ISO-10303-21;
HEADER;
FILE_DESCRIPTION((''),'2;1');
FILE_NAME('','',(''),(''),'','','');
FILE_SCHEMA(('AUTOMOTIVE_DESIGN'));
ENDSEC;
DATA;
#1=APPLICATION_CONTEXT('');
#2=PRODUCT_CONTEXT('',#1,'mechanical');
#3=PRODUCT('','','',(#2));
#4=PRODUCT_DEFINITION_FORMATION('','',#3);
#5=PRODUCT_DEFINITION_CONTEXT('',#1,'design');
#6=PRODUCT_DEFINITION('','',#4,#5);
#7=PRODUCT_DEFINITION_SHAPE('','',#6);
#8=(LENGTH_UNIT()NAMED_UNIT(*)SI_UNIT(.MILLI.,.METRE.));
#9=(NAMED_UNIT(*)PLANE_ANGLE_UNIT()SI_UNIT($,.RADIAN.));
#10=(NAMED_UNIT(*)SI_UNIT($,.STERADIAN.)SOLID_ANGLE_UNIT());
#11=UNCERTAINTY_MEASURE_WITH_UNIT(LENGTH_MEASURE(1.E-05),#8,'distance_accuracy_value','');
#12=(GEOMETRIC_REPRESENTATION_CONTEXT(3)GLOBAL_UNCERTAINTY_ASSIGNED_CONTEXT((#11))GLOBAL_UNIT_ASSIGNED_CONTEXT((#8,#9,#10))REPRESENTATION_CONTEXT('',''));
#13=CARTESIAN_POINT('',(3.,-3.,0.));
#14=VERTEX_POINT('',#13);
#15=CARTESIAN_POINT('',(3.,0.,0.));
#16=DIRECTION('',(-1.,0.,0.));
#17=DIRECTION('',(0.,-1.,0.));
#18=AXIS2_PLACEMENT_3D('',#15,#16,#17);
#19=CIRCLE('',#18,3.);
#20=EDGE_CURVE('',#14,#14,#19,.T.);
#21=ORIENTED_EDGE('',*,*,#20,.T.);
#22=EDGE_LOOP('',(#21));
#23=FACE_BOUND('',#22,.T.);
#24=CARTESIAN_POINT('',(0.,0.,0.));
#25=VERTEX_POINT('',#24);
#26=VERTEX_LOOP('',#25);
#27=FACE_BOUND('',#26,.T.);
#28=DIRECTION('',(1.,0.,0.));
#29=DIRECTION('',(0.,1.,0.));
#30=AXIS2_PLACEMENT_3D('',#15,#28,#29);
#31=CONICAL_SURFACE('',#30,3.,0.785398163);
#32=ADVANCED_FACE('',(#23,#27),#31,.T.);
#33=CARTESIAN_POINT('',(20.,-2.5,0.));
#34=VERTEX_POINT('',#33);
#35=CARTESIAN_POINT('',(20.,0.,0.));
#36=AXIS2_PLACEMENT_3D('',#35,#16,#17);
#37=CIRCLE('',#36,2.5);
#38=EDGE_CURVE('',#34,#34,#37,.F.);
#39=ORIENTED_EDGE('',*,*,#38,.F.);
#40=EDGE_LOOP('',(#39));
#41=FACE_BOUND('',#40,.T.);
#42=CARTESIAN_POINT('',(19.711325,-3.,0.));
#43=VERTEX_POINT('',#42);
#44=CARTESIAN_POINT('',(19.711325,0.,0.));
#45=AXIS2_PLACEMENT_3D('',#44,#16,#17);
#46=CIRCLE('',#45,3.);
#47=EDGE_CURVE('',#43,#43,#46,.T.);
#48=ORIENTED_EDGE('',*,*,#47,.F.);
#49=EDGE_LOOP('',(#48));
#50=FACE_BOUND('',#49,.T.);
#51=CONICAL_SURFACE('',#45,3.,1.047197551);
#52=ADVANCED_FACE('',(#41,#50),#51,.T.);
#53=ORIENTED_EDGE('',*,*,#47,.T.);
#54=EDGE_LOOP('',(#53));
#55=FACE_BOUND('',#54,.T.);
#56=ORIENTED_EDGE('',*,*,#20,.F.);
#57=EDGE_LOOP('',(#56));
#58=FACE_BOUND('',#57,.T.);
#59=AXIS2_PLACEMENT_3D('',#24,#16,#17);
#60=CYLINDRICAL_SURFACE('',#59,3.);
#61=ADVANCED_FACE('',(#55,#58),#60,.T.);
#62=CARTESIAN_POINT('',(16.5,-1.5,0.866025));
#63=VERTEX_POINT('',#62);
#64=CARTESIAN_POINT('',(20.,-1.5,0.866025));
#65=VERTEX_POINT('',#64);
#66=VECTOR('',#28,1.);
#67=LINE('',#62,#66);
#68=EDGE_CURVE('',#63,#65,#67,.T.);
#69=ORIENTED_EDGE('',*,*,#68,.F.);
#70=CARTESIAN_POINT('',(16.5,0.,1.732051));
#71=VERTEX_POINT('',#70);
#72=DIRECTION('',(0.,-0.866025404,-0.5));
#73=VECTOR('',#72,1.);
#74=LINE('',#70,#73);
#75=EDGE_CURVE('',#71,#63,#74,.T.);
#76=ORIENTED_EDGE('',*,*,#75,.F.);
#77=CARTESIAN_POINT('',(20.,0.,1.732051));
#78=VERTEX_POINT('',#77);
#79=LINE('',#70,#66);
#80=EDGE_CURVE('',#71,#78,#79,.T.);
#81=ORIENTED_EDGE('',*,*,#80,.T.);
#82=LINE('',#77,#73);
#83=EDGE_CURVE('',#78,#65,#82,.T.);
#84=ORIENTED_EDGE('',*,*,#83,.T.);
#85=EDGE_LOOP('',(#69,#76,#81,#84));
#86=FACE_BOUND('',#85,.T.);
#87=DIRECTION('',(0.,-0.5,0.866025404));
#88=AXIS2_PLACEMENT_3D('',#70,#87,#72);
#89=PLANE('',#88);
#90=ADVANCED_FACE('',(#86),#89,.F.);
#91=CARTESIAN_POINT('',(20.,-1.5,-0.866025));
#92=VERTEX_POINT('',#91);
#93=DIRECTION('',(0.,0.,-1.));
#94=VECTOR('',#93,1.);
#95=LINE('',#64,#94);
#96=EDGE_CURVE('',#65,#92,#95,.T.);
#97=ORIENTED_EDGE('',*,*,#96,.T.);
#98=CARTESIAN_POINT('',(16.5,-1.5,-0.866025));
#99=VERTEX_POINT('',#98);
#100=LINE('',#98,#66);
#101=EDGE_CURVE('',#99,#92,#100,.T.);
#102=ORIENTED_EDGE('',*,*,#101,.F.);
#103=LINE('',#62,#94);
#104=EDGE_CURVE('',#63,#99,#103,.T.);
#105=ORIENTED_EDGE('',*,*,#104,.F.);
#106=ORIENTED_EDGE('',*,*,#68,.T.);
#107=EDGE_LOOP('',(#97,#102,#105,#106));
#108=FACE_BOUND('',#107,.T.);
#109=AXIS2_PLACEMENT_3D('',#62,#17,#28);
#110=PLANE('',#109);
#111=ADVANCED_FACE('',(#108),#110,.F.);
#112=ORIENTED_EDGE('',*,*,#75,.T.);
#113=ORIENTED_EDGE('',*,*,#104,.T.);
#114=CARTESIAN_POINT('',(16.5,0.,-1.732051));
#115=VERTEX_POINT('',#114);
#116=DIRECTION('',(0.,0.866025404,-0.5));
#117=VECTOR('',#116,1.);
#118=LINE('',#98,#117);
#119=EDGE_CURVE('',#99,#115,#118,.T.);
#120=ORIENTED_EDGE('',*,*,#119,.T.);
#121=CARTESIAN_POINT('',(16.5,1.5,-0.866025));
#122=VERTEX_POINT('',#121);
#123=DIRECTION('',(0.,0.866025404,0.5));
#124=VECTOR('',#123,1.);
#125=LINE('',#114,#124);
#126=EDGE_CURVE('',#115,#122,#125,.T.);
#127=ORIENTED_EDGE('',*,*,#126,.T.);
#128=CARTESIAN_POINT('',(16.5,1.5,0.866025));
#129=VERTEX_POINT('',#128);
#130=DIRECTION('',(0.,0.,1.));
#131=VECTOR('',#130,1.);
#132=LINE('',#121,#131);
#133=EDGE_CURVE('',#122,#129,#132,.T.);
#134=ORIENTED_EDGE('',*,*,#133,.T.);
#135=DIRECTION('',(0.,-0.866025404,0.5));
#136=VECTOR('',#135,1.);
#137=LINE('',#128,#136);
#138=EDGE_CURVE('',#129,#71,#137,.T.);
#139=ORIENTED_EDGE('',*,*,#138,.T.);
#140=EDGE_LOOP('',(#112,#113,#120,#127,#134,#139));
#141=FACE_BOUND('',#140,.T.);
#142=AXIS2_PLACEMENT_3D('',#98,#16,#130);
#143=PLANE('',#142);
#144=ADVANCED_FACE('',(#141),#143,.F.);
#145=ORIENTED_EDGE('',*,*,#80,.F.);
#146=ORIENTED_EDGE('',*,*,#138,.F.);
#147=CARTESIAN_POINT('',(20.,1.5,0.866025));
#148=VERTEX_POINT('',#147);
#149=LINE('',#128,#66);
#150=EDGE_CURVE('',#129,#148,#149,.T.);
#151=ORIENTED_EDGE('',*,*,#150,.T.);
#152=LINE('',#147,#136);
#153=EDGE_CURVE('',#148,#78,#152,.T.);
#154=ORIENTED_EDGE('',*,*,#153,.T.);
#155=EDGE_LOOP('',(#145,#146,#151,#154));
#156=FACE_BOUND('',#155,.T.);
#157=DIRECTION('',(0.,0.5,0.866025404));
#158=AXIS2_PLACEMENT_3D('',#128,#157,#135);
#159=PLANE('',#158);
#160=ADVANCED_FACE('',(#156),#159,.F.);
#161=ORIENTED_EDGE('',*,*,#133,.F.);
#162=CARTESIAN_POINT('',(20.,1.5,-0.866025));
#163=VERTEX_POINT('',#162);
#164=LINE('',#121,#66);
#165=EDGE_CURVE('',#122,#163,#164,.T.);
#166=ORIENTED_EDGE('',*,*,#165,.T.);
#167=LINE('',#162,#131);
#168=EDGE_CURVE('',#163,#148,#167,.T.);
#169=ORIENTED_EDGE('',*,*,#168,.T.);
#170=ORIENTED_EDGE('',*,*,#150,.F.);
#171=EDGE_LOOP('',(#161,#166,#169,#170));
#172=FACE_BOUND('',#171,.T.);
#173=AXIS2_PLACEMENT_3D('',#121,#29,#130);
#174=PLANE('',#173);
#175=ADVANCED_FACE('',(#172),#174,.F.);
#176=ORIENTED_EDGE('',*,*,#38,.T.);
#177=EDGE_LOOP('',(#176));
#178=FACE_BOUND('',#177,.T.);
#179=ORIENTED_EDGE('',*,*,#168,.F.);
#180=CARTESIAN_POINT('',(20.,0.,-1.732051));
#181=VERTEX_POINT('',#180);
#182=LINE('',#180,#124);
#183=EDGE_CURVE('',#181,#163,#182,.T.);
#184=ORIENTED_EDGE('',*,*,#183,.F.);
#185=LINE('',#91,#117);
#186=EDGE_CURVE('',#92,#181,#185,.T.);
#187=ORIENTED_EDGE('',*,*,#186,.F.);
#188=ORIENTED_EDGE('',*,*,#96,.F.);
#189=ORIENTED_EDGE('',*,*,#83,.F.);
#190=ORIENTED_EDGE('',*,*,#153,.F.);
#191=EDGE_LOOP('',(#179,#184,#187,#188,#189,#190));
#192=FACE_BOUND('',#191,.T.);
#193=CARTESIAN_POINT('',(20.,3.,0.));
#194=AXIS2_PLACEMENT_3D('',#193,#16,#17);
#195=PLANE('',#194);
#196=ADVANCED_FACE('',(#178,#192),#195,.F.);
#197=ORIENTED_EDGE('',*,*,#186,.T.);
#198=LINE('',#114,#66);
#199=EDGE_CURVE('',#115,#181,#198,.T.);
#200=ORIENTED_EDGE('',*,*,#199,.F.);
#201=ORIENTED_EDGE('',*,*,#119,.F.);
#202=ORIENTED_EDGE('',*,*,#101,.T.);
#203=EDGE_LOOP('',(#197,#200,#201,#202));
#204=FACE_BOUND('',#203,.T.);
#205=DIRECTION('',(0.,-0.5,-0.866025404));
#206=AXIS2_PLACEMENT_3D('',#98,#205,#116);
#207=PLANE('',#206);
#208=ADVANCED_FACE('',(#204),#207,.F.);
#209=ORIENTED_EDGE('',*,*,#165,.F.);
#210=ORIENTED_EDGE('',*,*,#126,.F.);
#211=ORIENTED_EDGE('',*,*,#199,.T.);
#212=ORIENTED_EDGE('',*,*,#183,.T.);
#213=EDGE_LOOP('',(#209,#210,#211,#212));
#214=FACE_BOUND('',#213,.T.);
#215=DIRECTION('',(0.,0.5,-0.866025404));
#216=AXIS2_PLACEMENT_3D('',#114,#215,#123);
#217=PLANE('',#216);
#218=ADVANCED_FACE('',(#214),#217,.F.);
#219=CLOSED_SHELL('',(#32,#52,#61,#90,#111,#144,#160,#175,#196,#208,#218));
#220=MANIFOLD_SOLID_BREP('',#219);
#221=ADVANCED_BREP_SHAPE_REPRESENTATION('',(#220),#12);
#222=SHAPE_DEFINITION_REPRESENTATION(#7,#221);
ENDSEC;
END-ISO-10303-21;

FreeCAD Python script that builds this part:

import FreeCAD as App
import Part
import Sketcher

V = App.Vector
Q = App.Units.Quantity


def edges_at(feature, points):
    """Names of the edges that pass closest to the given points."""
    edges = feature.Shape.Edges
    near = lambda p: min(range(len(edges)), key=lambda i: edges[i].distToShape(Part.Vertex(*p))[0])
    return sorted({f"Edge{near(p) + 1}" for p in points})


def add_polygon(sketch, points):
    """Adds a closed chain of lines whose ends are joined by coincident constraints."""
    first, n = sketch.GeometryCount, len(points)
    for a, b in zip(points, points[1:] + points[:1]):
        sketch.addGeometry(Part.LineSegment(App.Vector(*a, 0), App.Vector(*b, 0)), False)
    for i in range(n):
        sketch.addConstraint(Sketcher.Constraint("Coincident", first + i, 2, first + (i + 1) % n, 1))

doc = App.newDocument("Part")
params = doc.addObject("Spreadsheet::Sheet", "Params")
for row, (alias, value) in enumerate([
    ("sketch1_width", "20 mm"),
    ("sketch1_width2", "17 mm"),
    ("sketch1_height", "3 mm"),
    ("revolution_angle", "360 deg"),
    ("pocket1_length", "3.5 mm"),
    ("chamfer_size", "0.288675 mm"),
    ("chamfer_size2", "0.5 mm"),
], start=1):
    params.set(f"A{row}", alias)
    params.set(f"B{row}", "=" + value)
    params.setAlias(f"B{row}", alias)

body = doc.addObject("PartDesign::Body", "Body")

sketch1 = doc.addObject("Sketcher::SketchObject", "Sketch")
body.addObject(sketch1)
sketch1.AttachmentSupport = (doc.XY_Plane, [""])
sketch1.MapMode = "FlatFace"
add_polygon(sketch1, [(3, 3), (0, 0), (20, 0), (20, 3)])
sketch1.addConstraint(Sketcher.Constraint("Horizontal", 1))
sketch1.addConstraint(Sketcher.Constraint("Vertical", 2))
sketch1.addConstraint(Sketcher.Constraint("Horizontal", 3))
sketch1.addConstraint(Sketcher.Constraint("Coincident", 0, 2, -1, 1))
sketch1.addConstraint(Sketcher.Constraint("DistanceX", 1, 1, 1, 2, Q("20 mm")))
sketch1.addConstraint(Sketcher.Constraint("DistanceX", 3, 2, 3, 1, Q("17 mm")))
sketch1.addConstraint(Sketcher.Constraint("DistanceY", 2, 1, 2, 2, Q("3 mm")))
sketch1.setExpression("Constraints[8]", "Params.sketch1_width")
sketch1.setExpression("Constraints[9]", "Params.sketch1_width2")
sketch1.setExpression("Constraints[10]", "Params.sketch1_height")
revolution = doc.addObject("PartDesign::Revolution", "Revolution")
body.addObject(revolution)
revolution.Profile = sketch1
revolution.ReferenceAxis = (sketch1, ["H_Axis"])
revolution.setExpression("Angle", "Params.revolution_angle")

sketch2 = doc.addObject("Sketcher::SketchObject", "Sketch001")
body.addObject(sketch2)
sketch2.AttachmentSupport = (doc.YZ_Plane, [""])
sketch2.MapMode = "FlatFace"
sketch2.AttachmentOffset = App.Placement(V(0, 0, 20), App.Rotation())
add_polygon(sketch2, [(0, -1.7), (1.5, -0.9), (1.5, 0.9), (0, 1.7), (-1.5, 0.9), (-1.5, -0.9)])
sketch2.addConstraint(Sketcher.Constraint("Vertical", 1))
sketch2.addConstraint(Sketcher.Constraint("Vertical", 4))
sketch2.addConstraint(Sketcher.Constraint("Symmetric", 0, 2, 3, 2, -1, 1))
sketch2.addConstraint(Sketcher.Constraint("Symmetric", 2, 2, 5, 2, -1, 1))
sketch2.addConstraint(Sketcher.Constraint("PointOnObject", 2, 2, -2))
sketch2.addConstraint(Sketcher.Constraint("Parallel", 2, 5))
sketch2.addConstraint(Sketcher.Constraint("Horizontal", 1, 2, 3, 2))
sketch2.addConstraint(Sketcher.Constraint("Angle", 0, Q("30 deg")))
sketch2.addConstraint(Sketcher.Constraint("DistanceX", 3, 2, 1, 2, Q("3 mm")))
sketch2.addConstraint(Sketcher.Constraint("DistanceY", 1, 1, 1, 2, Q("1.732051 mm")))
pocket1 = doc.addObject("PartDesign::Pocket", "Pocket")
body.addObject(pocket1)
pocket1.Profile = sketch2
pocket1.setExpression("Length", "Params.pocket1_length")
doc.recompute()

chamfer = doc.addObject("PartDesign::Chamfer", "Chamfer")
body.addObject(chamfer)
chamfer.Base = (pocket1, edges_at(pocket1, [(20, 3, 0)]))
chamfer.ChamferType = "Two distances"
chamfer.setExpression("Size", "Params.chamfer_size")
chamfer.setExpression("Size2", "Params.chamfer_size2")

doc.recompute()
